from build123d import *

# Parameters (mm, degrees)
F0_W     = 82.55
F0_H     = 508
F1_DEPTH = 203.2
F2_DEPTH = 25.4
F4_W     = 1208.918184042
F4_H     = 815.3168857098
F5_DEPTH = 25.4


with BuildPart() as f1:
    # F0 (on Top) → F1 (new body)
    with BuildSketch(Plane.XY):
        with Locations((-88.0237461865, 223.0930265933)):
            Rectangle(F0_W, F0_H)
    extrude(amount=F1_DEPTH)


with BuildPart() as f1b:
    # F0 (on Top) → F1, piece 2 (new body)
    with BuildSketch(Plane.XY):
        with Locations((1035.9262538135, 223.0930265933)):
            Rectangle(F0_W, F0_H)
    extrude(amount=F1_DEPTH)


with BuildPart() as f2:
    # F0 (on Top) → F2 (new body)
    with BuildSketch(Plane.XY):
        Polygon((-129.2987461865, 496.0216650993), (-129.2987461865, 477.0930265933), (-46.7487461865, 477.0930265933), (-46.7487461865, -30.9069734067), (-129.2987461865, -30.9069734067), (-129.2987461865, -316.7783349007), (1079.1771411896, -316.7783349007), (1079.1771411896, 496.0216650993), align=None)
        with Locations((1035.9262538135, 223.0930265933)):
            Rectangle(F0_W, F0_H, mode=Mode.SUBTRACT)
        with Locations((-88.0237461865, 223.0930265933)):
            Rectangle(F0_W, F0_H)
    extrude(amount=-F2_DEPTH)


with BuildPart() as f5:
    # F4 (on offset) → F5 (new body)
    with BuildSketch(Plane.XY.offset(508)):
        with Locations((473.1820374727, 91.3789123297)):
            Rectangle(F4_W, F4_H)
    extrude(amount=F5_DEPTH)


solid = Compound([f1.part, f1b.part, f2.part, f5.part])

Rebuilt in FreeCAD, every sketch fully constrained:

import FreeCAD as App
import Part
import Sketcher
from FreeCAD import Vector
Q = App.Units.Quantity


def add_polygon(sketch, points):
    """Adds a closed chain of lines whose ends are joined by coincident constraints."""
    first, n = sketch.GeometryCount, len(points)
    for a, b in zip(points, points[1:] + points[:1]):
        sketch.addGeometry(Part.LineSegment(App.Vector(*a, 0), App.Vector(*b, 0)), False)
    for i in range(n):
        sketch.addConstraint(Sketcher.Constraint("Coincident", first + i, 2, first + (i + 1) % n, 1))

doc = App.newDocument("Part")
body = doc.addObject("PartDesign::Body", "Body")

sketch1 = body.newObject("Sketcher::SketchObject", "Sketch")
sketch1.AttachmentSupport = (doc.getObject("XY_Plane"), [""])
sketch1.MapMode = "FlatFace"
add_polygon(sketch1, [(-129, 477), (-129, -31), (-47, -31), (-47, 477)])
sketch1.addConstraint(Sketcher.Constraint("Vertical", 0))
sketch1.addConstraint(Sketcher.Constraint("Horizontal", 1))
sketch1.addConstraint(Sketcher.Constraint("Vertical", 2))
sketch1.addConstraint(Sketcher.Constraint("Horizontal", 3))
sketch1.addConstraint(Sketcher.Constraint("DistanceY", 0, 2, 0, 1, Q("20 in")))
sketch1.addConstraint(Sketcher.Constraint("DistanceX", 1, 1, 1, 2, Q("3.25 in")))
sketch1.addConstraint(Sketcher.Constraint("DistanceX", 0, 2, -1, 1, 129.298746))
sketch1.addConstraint(Sketcher.Constraint("DistanceY", 0, 2, -1, 1, 30.906973))
pad1 = body.newObject("PartDesign::Pad", "Pad")
pad1.Profile = sketch1
pad1.Length = Q("8 in")
body2 = doc.addObject("PartDesign::Body", "Body001")

sketch2 = body2.newObject("Sketcher::SketchObject", "Sketch001")
sketch2.AttachmentSupport = (doc.getObject("XY_Plane001"), [""])
sketch2.MapMode = "FlatFace"
add_polygon(sketch2, [(995, 477), (995, -31), (1077, -31), (1077, 477)])
sketch2.addConstraint(Sketcher.Constraint("Vertical", 0))
sketch2.addConstraint(Sketcher.Constraint("Horizontal", 1))
sketch2.addConstraint(Sketcher.Constraint("Vertical", 2))
sketch2.addConstraint(Sketcher.Constraint("Horizontal", 3))
sketch2.addConstraint(Sketcher.Constraint("DistanceY", 0, 2, 0, 1, Q("20 in")))
sketch2.addConstraint(Sketcher.Constraint("DistanceX", 1, 1, 1, 2, Q("3.25 in")))
sketch2.addConstraint(Sketcher.Constraint("DistanceX", -1, 1, 0, 2, 994.651254))
sketch2.addConstraint(Sketcher.Constraint("DistanceY", 0, 2, -1, 1, 30.906973))
pad2 = body2.newObject("PartDesign::Pad", "Pad001")
pad2.Profile = sketch2
pad2.Length = Q("8 in")
body3 = doc.addObject("PartDesign::Body", "Body002")

sketch3 = body3.newObject("Sketcher::SketchObject", "Sketch002")
sketch3.AttachmentSupport = (doc.getObject("XY_Plane002"), [""])
sketch3.MapMode = "FlatFace"
add_polygon(sketch3, [(-129, 496), (-129, -317), (1079, -317), (1079, 496)])
add_polygon(sketch3, [(1077, -31), (995, -31), (995, 477), (1077, 477)])
sketch3.addConstraint(Sketcher.Constraint("Vertical", 0))
sketch3.addConstraint(Sketcher.Constraint("Horizontal", 1))
sketch3.addConstraint(Sketcher.Constraint("Vertical", 2))
sketch3.addConstraint(Sketcher.Constraint("Horizontal", 3))
sketch3.addConstraint(Sketcher.Constraint("Horizontal", 4))
sketch3.addConstraint(Sketcher.Constraint("Vertical", 5))
sketch3.addConstraint(Sketcher.Constraint("Horizontal", 6))
sketch3.addConstraint(Sketcher.Constraint("Vertical", 7))
sketch3.addConstraint(Sketcher.Constraint("DistanceY", 0, 2, 0, 1, Q("32 in")))
sketch3.addConstraint(Sketcher.Constraint("DistanceY", 5, 1, 5, 2, Q("20 in")))
sketch3.addConstraint(Sketcher.Constraint("DistanceX", 4, 2, 4, 1, Q("3.25 in")))
sketch3.addConstraint(Sketcher.Constraint("DistanceX", 3, 2, 6, 2, Q("47.5 in")))
sketch3.addConstraint(Sketcher.Constraint("DistanceX", 1, 1, 1, 2, 1208.475887))
sketch3.addConstraint(Sketcher.Constraint("DistanceX", -1, 1, 1, 2, 1079.177141))
sketch3.addConstraint(Sketcher.Constraint("DistanceY", 1, 2, 4, 2, 285.871361))
sketch3.addConstraint(Sketcher.Constraint("DistanceY", 0, 2, -1, 1, 316.778335))
pad3 = body3.newObject("PartDesign::Pad", "Pad002")
pad3.Profile = sketch3
pad3.Length = Q("1 in")
pad3.Reversed = True
body4 = doc.addObject("PartDesign::Body", "Body003")

sketch4 = body4.newObject("Sketcher::SketchObject", "Sketch003")
sketch4.AttachmentSupport = (doc.getObject("XY_Plane003"), [""])
sketch4.MapMode = "FlatFace"
sketch4.AttachmentOffset = App.Placement(Vector(0, 0, 20 * 25.4), App.Rotation())
add_polygon(sketch4, [(-131, 499), (-131, -316), (1078, -316), (1078, 499)])
sketch4.addConstraint(Sketcher.Constraint("Vertical", 0))
sketch4.addConstraint(Sketcher.Constraint("Horizontal", 1))
sketch4.addConstraint(Sketcher.Constraint("Vertical", 2))
sketch4.addConstraint(Sketcher.Constraint("Horizontal", 3))
sketch4.addConstraint(Sketcher.Constraint("DistanceX", 1, 1, 1, 2, 1208.918184))
sketch4.addConstraint(Sketcher.Constraint("DistanceY", 0, 2, 0, 1, 815.316886))
sketch4.addConstraint(Sketcher.Constraint("DistanceY", 0, 2, -1, 1, 316.279531))
sketch4.addConstraint(Sketcher.Constraint("DistanceX", -1, 1, 1, 2, 1077.641129))
pad4 = body4.newObject("PartDesign::Pad", "Pad003")
pad4.Profile = sketch4
pad4.Length = Q("1 in")

doc.recompute()
